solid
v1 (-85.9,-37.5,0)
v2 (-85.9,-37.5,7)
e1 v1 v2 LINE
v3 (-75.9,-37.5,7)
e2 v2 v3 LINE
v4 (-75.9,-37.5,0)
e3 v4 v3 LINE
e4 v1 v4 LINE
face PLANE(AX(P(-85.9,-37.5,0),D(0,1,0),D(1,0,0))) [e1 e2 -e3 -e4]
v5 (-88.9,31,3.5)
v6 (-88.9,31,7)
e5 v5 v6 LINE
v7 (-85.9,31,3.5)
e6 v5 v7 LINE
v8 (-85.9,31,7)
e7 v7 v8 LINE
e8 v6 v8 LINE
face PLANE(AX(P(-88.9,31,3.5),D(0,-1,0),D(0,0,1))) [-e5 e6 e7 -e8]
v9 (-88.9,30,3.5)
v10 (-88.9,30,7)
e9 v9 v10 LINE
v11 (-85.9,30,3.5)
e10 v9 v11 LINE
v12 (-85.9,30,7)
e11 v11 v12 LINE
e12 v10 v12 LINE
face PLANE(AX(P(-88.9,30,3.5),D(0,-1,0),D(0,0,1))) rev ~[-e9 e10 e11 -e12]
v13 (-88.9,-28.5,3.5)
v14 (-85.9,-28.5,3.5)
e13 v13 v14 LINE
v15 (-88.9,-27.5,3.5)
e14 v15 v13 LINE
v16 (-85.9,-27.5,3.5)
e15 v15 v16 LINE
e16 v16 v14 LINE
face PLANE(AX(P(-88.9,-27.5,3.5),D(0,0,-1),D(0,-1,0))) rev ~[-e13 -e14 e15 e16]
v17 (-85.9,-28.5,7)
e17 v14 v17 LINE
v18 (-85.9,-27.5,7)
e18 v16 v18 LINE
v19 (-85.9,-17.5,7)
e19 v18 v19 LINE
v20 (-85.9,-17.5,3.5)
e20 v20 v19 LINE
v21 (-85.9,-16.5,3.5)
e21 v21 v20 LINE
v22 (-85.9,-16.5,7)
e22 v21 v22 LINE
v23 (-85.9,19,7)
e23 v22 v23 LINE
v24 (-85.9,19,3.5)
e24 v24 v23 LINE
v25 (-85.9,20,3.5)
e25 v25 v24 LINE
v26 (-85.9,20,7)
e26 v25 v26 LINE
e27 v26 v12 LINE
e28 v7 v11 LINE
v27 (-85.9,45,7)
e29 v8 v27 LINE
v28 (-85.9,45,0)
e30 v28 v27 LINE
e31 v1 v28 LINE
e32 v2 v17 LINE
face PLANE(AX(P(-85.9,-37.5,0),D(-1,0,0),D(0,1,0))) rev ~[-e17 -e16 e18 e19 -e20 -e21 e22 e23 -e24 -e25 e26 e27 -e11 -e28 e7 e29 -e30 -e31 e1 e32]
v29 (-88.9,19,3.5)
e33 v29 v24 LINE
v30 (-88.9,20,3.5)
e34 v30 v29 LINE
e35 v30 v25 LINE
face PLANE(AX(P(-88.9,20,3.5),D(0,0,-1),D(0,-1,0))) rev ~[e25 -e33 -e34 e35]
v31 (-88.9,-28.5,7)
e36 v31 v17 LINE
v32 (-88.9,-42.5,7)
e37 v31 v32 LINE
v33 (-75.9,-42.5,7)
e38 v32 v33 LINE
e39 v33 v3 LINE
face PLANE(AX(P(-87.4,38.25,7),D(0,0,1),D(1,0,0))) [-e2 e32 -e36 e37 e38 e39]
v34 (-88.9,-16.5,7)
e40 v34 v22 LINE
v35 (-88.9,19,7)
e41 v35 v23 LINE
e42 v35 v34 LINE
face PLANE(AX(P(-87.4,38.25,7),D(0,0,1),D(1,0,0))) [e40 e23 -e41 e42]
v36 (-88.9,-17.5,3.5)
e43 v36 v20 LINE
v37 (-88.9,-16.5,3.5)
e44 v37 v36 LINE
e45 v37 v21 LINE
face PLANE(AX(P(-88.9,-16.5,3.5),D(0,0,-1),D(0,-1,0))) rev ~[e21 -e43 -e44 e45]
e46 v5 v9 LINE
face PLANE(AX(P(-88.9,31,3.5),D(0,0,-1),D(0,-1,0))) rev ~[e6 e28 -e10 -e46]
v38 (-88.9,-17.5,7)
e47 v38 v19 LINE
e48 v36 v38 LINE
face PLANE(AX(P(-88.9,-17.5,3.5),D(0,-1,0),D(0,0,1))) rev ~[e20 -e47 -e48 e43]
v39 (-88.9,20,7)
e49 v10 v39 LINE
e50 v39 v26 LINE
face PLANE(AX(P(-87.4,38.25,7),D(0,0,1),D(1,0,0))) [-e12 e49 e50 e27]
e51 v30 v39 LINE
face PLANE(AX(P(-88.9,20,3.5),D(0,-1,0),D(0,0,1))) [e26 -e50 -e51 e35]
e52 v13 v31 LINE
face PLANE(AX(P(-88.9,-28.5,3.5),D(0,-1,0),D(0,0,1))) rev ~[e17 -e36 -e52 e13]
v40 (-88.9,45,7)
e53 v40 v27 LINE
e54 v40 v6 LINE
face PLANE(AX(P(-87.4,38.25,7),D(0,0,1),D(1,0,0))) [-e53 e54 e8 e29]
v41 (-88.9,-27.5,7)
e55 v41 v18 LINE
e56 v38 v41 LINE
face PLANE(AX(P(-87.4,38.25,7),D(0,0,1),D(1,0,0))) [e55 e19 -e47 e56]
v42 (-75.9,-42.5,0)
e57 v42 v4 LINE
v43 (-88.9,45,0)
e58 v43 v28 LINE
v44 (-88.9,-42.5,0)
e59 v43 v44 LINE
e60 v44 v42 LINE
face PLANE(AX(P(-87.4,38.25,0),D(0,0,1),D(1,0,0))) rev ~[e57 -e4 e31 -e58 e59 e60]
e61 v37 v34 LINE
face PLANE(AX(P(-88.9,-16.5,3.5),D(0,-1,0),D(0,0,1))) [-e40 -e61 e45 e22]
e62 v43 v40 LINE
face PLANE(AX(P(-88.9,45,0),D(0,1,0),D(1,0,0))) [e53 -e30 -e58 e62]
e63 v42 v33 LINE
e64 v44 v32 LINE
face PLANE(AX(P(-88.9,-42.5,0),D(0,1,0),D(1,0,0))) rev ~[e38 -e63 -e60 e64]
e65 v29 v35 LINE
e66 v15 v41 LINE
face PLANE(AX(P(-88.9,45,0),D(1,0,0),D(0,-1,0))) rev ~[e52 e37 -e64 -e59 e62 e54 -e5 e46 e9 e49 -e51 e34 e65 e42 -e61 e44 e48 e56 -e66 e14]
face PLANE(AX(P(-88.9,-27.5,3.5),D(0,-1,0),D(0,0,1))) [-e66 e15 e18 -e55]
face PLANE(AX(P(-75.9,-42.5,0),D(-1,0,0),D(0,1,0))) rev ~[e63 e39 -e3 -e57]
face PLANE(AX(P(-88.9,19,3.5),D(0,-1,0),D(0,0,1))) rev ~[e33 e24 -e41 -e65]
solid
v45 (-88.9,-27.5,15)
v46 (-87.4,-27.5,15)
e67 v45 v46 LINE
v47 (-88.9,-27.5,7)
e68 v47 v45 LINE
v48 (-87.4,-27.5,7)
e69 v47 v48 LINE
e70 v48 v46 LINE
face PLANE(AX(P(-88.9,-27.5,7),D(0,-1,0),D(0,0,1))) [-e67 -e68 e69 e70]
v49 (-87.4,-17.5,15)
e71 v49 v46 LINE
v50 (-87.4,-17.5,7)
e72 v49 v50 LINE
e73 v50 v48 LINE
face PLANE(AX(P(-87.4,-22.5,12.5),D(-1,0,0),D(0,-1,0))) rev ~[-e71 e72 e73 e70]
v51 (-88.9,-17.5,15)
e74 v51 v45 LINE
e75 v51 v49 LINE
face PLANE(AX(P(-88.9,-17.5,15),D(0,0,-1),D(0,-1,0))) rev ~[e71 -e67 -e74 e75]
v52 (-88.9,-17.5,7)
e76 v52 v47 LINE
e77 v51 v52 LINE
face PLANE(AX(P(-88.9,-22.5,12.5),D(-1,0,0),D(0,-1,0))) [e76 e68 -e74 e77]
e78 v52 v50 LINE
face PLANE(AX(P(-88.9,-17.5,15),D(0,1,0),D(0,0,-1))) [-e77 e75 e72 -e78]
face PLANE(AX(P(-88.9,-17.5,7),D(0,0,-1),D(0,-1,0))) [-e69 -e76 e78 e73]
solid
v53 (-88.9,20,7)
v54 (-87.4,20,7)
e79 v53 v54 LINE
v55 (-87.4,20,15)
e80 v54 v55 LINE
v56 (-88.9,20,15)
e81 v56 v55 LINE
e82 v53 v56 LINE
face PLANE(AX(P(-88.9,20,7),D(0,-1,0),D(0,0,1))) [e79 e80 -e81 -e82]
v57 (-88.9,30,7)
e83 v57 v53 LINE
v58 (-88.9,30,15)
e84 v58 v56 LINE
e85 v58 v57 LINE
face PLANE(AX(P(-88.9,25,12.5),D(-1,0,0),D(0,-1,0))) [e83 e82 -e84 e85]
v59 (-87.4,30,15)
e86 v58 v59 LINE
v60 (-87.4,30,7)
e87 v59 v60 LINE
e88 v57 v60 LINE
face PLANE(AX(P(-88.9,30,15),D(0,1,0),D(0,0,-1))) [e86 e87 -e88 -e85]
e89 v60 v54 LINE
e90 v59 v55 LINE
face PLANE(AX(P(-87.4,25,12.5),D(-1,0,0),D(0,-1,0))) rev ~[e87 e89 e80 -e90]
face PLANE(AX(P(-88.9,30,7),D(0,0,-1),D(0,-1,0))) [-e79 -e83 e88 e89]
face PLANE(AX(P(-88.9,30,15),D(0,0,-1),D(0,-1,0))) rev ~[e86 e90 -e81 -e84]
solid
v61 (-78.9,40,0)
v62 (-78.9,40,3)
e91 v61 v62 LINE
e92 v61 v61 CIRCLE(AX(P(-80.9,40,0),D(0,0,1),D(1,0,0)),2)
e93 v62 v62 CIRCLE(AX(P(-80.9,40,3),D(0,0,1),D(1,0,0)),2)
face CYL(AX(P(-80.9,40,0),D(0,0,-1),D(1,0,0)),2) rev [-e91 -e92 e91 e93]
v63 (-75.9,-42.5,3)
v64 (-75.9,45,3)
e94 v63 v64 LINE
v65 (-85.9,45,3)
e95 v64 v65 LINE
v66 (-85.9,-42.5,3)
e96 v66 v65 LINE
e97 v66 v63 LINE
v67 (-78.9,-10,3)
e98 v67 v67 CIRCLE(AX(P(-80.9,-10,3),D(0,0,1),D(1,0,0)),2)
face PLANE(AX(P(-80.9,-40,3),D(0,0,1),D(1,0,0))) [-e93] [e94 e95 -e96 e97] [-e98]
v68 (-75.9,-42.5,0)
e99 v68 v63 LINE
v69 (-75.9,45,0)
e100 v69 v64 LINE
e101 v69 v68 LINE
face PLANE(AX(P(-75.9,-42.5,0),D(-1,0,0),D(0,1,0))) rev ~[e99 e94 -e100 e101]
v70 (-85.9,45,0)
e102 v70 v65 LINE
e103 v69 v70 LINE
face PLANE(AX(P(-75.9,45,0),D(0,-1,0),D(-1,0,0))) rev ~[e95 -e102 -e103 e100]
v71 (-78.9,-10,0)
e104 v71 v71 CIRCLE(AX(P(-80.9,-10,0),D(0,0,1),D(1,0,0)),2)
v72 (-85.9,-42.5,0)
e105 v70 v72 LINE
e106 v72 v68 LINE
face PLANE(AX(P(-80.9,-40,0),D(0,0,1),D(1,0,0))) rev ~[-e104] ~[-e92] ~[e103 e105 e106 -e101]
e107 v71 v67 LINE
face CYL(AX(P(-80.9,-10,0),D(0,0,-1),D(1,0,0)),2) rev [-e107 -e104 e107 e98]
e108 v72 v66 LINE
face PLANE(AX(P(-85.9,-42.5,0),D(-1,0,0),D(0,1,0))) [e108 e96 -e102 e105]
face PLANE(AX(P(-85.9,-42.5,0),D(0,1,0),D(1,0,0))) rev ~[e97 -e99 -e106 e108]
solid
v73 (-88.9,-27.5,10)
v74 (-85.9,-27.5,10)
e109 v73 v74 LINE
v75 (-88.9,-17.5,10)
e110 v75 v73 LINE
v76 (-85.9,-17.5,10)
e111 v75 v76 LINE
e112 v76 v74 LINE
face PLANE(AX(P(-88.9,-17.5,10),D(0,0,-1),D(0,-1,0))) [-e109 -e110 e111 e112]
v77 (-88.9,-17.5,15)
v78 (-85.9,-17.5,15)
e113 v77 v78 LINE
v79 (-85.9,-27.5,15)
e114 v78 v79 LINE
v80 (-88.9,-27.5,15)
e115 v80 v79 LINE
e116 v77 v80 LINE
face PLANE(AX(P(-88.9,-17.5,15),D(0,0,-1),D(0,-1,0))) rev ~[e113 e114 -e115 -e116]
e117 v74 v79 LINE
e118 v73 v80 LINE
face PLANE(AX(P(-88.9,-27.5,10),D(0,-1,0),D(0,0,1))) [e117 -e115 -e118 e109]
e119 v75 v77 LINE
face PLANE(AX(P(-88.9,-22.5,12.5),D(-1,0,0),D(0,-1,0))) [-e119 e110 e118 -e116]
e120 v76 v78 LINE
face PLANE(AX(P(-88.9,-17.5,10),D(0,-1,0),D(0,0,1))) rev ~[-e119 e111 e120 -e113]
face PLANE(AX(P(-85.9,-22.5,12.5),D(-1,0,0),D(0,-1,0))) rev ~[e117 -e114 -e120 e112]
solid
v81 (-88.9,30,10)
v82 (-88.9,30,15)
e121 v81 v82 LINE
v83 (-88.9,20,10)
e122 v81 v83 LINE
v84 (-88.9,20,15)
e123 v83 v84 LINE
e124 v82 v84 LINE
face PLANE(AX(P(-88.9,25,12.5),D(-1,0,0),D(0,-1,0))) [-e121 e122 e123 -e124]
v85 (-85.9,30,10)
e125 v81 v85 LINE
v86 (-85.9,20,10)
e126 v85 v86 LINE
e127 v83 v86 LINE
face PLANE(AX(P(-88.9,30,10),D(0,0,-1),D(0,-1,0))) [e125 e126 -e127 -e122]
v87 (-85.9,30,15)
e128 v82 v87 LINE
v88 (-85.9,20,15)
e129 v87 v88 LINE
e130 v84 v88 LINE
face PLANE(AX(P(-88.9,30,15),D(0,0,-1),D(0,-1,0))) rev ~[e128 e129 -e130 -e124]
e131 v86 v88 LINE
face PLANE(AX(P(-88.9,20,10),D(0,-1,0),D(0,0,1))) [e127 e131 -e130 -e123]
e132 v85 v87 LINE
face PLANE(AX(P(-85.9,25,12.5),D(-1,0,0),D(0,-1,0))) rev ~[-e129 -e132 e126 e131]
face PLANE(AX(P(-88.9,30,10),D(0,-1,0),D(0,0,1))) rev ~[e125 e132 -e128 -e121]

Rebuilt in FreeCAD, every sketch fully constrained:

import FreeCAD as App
import Part
import Sketcher
from FreeCAD import Vector


def add_polygon(sketch, points):
    """Adds a closed chain of lines whose ends are joined by coincident constraints."""
    first, n = sketch.GeometryCount, len(points)
    for a, b in zip(points, points[1:] + points[:1]):
        sketch.addGeometry(Part.LineSegment(App.Vector(*a, 0), App.Vector(*b, 0)), False)
    for i in range(n):
        sketch.addConstraint(Sketcher.Constraint("Coincident", first + i, 2, first + (i + 1) % n, 1))

doc = App.newDocument("Part")
body = doc.addObject("PartDesign::Body", "Body")

# Sketch on XY plane
sketch1 = body.newObject("Sketcher::SketchObject", "Sketch")
sketch1.AttachmentSupport = (doc.getObject("XY_Plane"), [""])
sketch1.MapMode = "FlatFace"
add_polygon(sketch1, [(-88.9, 45), (-88.9, -42.5), (-75.9, -42.5), (-75.9, -37.5), (-85.9, -37.5), (-85.9, 45)])  # lines 0-5
sketch1.addConstraint(Sketcher.Constraint("Vertical", 0))
sketch1.addConstraint(Sketcher.Constraint("Horizontal", 1))
sketch1.addConstraint(Sketcher.Constraint("Vertical", 2))
sketch1.addConstraint(Sketcher.Constraint("Horizontal", 3))
sketch1.addConstraint(Sketcher.Constraint("Vertical", 4))
sketch1.addConstraint(Sketcher.Constraint("Horizontal", 5))
sketch1.addConstraint(Sketcher.Constraint("DistanceX", 1, 1, 1, 2, 13.0))
sketch1.addConstraint(Sketcher.Constraint("DistanceX", 3, 2, 3, 1, 10.0))
sketch1.addConstraint(Sketcher.Constraint("DistanceY", 2, 1, 2, 2, 5.0))
sketch1.addConstraint(Sketcher.Constraint("DistanceY", 0, 2, 0, 1, 87.5))
sketch1.addConstraint(Sketcher.Constraint("DistanceY", -1, 1, 4, 2, 45.0))
sketch1.addConstraint(Sketcher.Constraint("DistanceX", 0, 2, -1, 1, 88.9))
pad1 = body.newObject("PartDesign::Pad", "Pad")
pad1.Profile = sketch1
pad1.Length = 7

# Sketch on YZ plane
sketch2 = body.newObject("Sketcher::SketchObject", "Sketch001")
sketch2.AttachmentSupport = (doc.getObject("YZ_Plane"), [""])
sketch2.MapMode = "FlatFace"
sketch2.AttachmentOffset = App.Placement(Vector(0, 0, -88.9), App.Rotation())
add_polygon(sketch2, [(31, 7), (31, 3.5), (30, 3.5), (30, 7)])  # lines 0-3
add_polygon(sketch2, [(20, 7), (20, 3.5), (19, 3.5), (19, 7)])  # lines 4-7
add_polygon(sketch2, [(-16.5, 7), (-16.5, 3.5), (-17.5, 3.5), (-17.5, 7)])  # lines 8-11
add_polygon(sketch2, [(-27.5, 7), (-27.5, 3.5), (-28.5, 3.5), (-28.5, 7)])  # lines 12-15
sketch2.addConstraint(Sketcher.Constraint("Vertical", 0))
sketch2.addConstraint(Sketcher.Constraint("Horizontal", 1))
sketch2.addConstraint(Sketcher.Constraint("Vertical", 2))
sketch2.addConstraint(Sketcher.Constraint("Horizontal", 3))
sketch2.addConstraint(Sketcher.Constraint("Vertical", 4))
sketch2.addConstraint(Sketcher.Constraint("Horizontal", 5))
sketch2.addConstraint(Sketcher.Constraint("Vertical", 6))
sketch2.addConstraint(Sketcher.Constraint("Horizontal", 7))
sketch2.addConstraint(Sketcher.Constraint("Vertical", 8))
sketch2.addConstraint(Sketcher.Constraint("Horizontal", 9))
sketch2.addConstraint(Sketcher.Constraint("Vertical", 10))
sketch2.addConstraint(Sketcher.Constraint("Horizontal", 11))
sketch2.addConstraint(Sketcher.Constraint("Vertical", 12))
sketch2.addConstraint(Sketcher.Constraint("Horizontal", 13))
sketch2.addConstraint(Sketcher.Constraint("Vertical", 14))
sketch2.addConstraint(Sketcher.Constraint("Horizontal", 15))
sketch2.addConstraint(Sketcher.Constraint("Horizontal", 1, 2, 4, 2))
sketch2.addConstraint(Sketcher.Constraint("Horizontal", 3, 2, 6, 2))
sketch2.addConstraint(Sketcher.Constraint("Horizontal", 5, 2, 8, 2))
sketch2.addConstraint(Sketcher.Constraint("Horizontal", 7, 2, 10, 2))
sketch2.addConstraint(Sketcher.Constraint("Horizontal", 9, 2, 12, 2))
sketch2.addConstraint(Sketcher.Constraint("Horizontal", 11, 2, 14, 2))
sketch2.addConstraint(Sketcher.Constraint("Equal", 3, 5))
sketch2.addConstraint(Sketcher.Constraint("Equal", 7, 9))
sketch2.addConstraint(Sketcher.Constraint("Equal", 11, 13))
sketch2.addConstraint(Sketcher.Constraint("DistanceX", 1, 2, 1, 1, 1.0))
sketch2.addConstraint(Sketcher.Constraint("DistanceY", 0, 2, 0, 1, 3.5))
sketch2.addConstraint(Sketcher.Constraint("DistanceX", -1, 1, 0, 2, 31.0))
sketch2.addConstraint(Sketcher.Constraint("DistanceY", -1, 1, 2, 2, 7.0))
sketch2.addConstraint(Sketcher.Constraint("DistanceX", -1, 1, 4, 2, 20.0))
sketch2.addConstraint(Sketcher.Constraint("DistanceX", 12, 2, 9, 2, 10.0))
sketch2.addConstraint(Sketcher.Constraint("DistanceX", 8, 2, -1, 1, 16.5))
pocket1 = body.newObject("PartDesign::Pocket", "Pocket")
pocket1.Profile = sketch2
pocket1.Type = "ThroughAll"
pocket1.Reversed = True
body2 = doc.addObject("PartDesign::Body", "Body001")

# Sketch on XY plane
sketch3 = body2.newObject("Sketcher::SketchObject", "Sketch002")
sketch3.AttachmentSupport = (doc.getObject("XY_Plane001"), [""])
sketch3.MapMode = "FlatFace"
add_polygon(sketch3, [(-85.9, -37.5), (-75.9, -37.5), (-75.9, 45), (-85.9, 45)])  # lines 0-3
sketch3.addGeometry(Part.Circle(Vector(-80.9, -10, 0), Vector(0, 0, 1), 2), False)  # 4
sketch3.addGeometry(Part.Circle(Vector(-80.9, 40, 0), Vector(0, 0, 1), 2), False)  # 5
sketch3.addConstraint(Sketcher.Constraint("Horizontal", 0))
sketch3.addConstraint(Sketcher.Constraint("Vertical", 1))
sketch3.addConstraint(Sketcher.Constraint("Horizontal", 2))
sketch3.addConstraint(Sketcher.Constraint("Vertical", 3))
sketch3.addConstraint(Sketcher.Constraint("Equal", 4, 5))
sketch3.addConstraint(Sketcher.Constraint("Vertical", 4, 3, 5, 3))
sketch3.addConstraint(Sketcher.Constraint("Diameter", 4, 4.0))
sketch3.addConstraint(Sketcher.Constraint("DistanceX", 0, 1, 0, 2, 10.0))
sketch3.addConstraint(Sketcher.Constraint("DistanceY", 1, 1, 1, 2, 82.5))
sketch3.addConstraint(Sketcher.Constraint("DistanceY", 4, 3, -1, 1, 10.0))
sketch3.addConstraint(Sketcher.Constraint("DistanceY", -1, 1, 5, 3, 40.0))
sketch3.addConstraint(Sketcher.Constraint("DistanceY", -1, 1, 1, 2, 45.0))
sketch3.addConstraint(Sketcher.Constraint("DistanceX", 4, 3, 0, 2, 5.0))
sketch3.addConstraint(Sketcher.Constraint("DistanceX", 4, 3, -1, 1, 80.9))
pad2 = body2.newObject("PartDesign::Pad", "Pad001")
pad2.Profile = sketch3
pad2.Length = 3

# Sketch on XY plane
sketch4 = body2.newObject("Sketcher::SketchObject", "Sketch003")
sketch4.AttachmentSupport = (doc.getObject("XY_Plane001"), [""])
sketch4.MapMode = "FlatFace"
add_polygon(sketch4, [(-85.9, -37.5), (-85.9, -42.5), (-75.9, -42.5), (-75.9, -37.5)])  # lines 0-3
sketch4.addConstraint(Sketcher.Constraint("Vertical", 0))
sketch4.addConstraint(Sketcher.Constraint("Horizontal", 1))
sketch4.addConstraint(Sketcher.Constraint("Vertical", 2))
sketch4.addConstraint(Sketcher.Constraint("Horizontal", 3))
sketch4.addConstraint(Sketcher.Constraint("DistanceX", 1, 1, 1, 2, 10.0))
sketch4.addConstraint(Sketcher.Constraint("DistanceY", 0, 2, 0, 1, 5.0))
sketch4.addConstraint(Sketcher.Constraint("DistanceX", 0, 2, -1, 1, 85.9))
sketch4.addConstraint(Sketcher.Constraint("DistanceY", 0, 2, -1, 1, 42.5))
pad3 = body2.newObject("PartDesign::Pad", "Pad002")
pad3.Profile = sketch4
pad3.Length = 3
body3 = doc.addObject("PartDesign::Body", "Body002")

# Sketch on YZ plane
sketch5 = body3.newObject("Sketcher::SketchObject", "Sketch004")
sketch5.AttachmentSupport = (doc.getObject("YZ_Plane002"), [""])
sketch5.MapMode = "FlatFace"
sketch5.AttachmentOffset = App.Placement(Vector(0, 0, -88.9), App.Rotation())
add_polygon(sketch5, [(30, 15), (30, 7), (20, 7), (20, 15)])  # lines 0-3
sketch5.addConstraint(Sketcher.Constraint("Vertical", 0))
sketch5.addConstraint(Sketcher.Constraint("Horizontal", 1))
sketch5.addConstraint(Sketcher.Constraint("Vertical", 2))
sketch5.addConstraint(Sketcher.Constraint("Horizontal", 3))
sketch5.addConstraint(Sketcher.Constraint("DistanceX", 1, 2, 1, 1, 10.0))
sketch5.addConstraint(Sketcher.Constraint("DistanceY", 0, 2, 0, 1, 8.0))
sketch5.addConstraint(Sketcher.Constraint("DistanceX", -1, 1, 0, 2, 30.0))
sketch5.addConstraint(Sketcher.Constraint("DistanceY", -1, 1, 0, 2, 7.0))
pad4 = body3.newObject("PartDesign::Pad", "Pad003")
pad4.Profile = sketch5
pad4.Length = 1.5
body4 = doc.addObject("PartDesign::Body", "Body003")

# Sketch on YZ plane
sketch6 = body4.newObject("Sketcher::SketchObject", "Sketch005")
sketch6.AttachmentSupport = (doc.getObject("YZ_Plane003"), [""])
sketch6.MapMode = "FlatFace"
sketch6.AttachmentOffset = App.Placement(Vector(0, 0, -88.9), App.Rotation())
add_polygon(sketch6, [(-17.5, 15), (-17.5, 7), (-27.5, 7), (-27.5, 15)])  # lines 0-3
sketch6.addConstraint(Sketcher.Constraint("Vertical", 0))
sketch6.addConstraint(Sketcher.Constraint("Horizontal", 1))
sketch6.addConstraint(Sketcher.Constraint("Vertical", 2))
sketch6.addConstraint(Sketcher.Constraint("Horizontal", 3))
sketch6.addConstraint(Sketcher.Constraint("DistanceX", 1, 2, 1, 1, 10.0))
sketch6.addConstraint(Sketcher.Constraint("DistanceY", 0, 2, 0, 1, 8.0))
sketch6.addConstraint(Sketcher.Constraint("DistanceY", -1, 1, 0, 2, 7.0))
sketch6.addConstraint(Sketcher.Constraint("DistanceX", 0, 2, -1, 1, 17.5))
pad5 = body4.newObject("PartDesign::Pad", "Pad004")
pad5.Profile = sketch6
pad5.Length = 1.5
body5 = doc.addObject("PartDesign::Body", "Body004")

# Sketch on YZ plane
sketch7 = body5.newObject("Sketcher::SketchObject", "Sketch006")
sketch7.AttachmentSupport = (doc.getObject("YZ_Plane004"), [""])
sketch7.MapMode = "FlatFace"
sketch7.AttachmentOffset = App.Placement(Vector(0, 0, -88.9), App.Rotation())
add_polygon(sketch7, [(-17.5, 15), (-17.5, 10), (-27.5, 10), (-27.5, 15)])  # lines 0-3
sketch7.addConstraint(Sketcher.Constraint("Vertical", 0))
sketch7.addConstraint(Sketcher.Constraint("Horizontal", 1))
sketch7.addConstraint(Sketcher.Constraint("Vertical", 2))
sketch7.addConstraint(Sketcher.Constraint("Horizontal", 3))
sketch7.addConstraint(Sketcher.Constraint("DistanceX", 1, 2, 1, 1, 10.0))
sketch7.addConstraint(Sketcher.Constraint("DistanceY", 0, 2, 0, 1, 5.0))
sketch7.addConstraint(Sketcher.Constraint("DistanceY", -1, 1, 0, 2, 10.0))
sketch7.addConstraint(Sketcher.Constraint("DistanceX", 0, 2, -1, 1, 17.5))
pad6 = body5.newObject("PartDesign::Pad", "Pad005")
pad6.Profile = sketch7
pad6.Length = 3
body6 = doc.addObject("PartDesign::Body", "Body005")

# Sketch on YZ plane
sketch8 = body6.newObject("Sketcher::SketchObject", "Sketch007")
sketch8.AttachmentSupport = (doc.getObject("YZ_Plane005"), [""])
sketch8.MapMode = "FlatFace"
sketch8.AttachmentOffset = App.Placement(Vector(0, 0, -88.9), App.Rotation())
add_polygon(sketch8, [(30, 15), (30, 10), (20, 10), (20, 15)])  # lines 0-3
sketch8.addConstraint(Sketcher.Constraint("Vertical", 0))
sketch8.addConstraint(Sketcher.Constraint("Horizontal", 1))
sketch8.addConstraint(Sketcher.Constraint("Vertical", 2))
sketch8.addConstraint(Sketcher.Constraint("Horizontal", 3))
sketch8.addConstraint(Sketcher.Constraint("DistanceX", 1, 2, 1, 1, 10.0))
sketch8.addConstraint(Sketcher.Constraint("DistanceY", 0, 2, 0, 1, 5.0))
sketch8.addConstraint(Sketcher.Constraint("DistanceX", -1, 1, 0, 2, 30.0))
sketch8.addConstraint(Sketcher.Constraint("DistanceY", -1, 1, 0, 2, 10.0))
pad7 = body6.newObject("PartDesign::Pad", "Pad006")
pad7.Profile = sketch8
pad7.Length = 3

doc.recompute()
